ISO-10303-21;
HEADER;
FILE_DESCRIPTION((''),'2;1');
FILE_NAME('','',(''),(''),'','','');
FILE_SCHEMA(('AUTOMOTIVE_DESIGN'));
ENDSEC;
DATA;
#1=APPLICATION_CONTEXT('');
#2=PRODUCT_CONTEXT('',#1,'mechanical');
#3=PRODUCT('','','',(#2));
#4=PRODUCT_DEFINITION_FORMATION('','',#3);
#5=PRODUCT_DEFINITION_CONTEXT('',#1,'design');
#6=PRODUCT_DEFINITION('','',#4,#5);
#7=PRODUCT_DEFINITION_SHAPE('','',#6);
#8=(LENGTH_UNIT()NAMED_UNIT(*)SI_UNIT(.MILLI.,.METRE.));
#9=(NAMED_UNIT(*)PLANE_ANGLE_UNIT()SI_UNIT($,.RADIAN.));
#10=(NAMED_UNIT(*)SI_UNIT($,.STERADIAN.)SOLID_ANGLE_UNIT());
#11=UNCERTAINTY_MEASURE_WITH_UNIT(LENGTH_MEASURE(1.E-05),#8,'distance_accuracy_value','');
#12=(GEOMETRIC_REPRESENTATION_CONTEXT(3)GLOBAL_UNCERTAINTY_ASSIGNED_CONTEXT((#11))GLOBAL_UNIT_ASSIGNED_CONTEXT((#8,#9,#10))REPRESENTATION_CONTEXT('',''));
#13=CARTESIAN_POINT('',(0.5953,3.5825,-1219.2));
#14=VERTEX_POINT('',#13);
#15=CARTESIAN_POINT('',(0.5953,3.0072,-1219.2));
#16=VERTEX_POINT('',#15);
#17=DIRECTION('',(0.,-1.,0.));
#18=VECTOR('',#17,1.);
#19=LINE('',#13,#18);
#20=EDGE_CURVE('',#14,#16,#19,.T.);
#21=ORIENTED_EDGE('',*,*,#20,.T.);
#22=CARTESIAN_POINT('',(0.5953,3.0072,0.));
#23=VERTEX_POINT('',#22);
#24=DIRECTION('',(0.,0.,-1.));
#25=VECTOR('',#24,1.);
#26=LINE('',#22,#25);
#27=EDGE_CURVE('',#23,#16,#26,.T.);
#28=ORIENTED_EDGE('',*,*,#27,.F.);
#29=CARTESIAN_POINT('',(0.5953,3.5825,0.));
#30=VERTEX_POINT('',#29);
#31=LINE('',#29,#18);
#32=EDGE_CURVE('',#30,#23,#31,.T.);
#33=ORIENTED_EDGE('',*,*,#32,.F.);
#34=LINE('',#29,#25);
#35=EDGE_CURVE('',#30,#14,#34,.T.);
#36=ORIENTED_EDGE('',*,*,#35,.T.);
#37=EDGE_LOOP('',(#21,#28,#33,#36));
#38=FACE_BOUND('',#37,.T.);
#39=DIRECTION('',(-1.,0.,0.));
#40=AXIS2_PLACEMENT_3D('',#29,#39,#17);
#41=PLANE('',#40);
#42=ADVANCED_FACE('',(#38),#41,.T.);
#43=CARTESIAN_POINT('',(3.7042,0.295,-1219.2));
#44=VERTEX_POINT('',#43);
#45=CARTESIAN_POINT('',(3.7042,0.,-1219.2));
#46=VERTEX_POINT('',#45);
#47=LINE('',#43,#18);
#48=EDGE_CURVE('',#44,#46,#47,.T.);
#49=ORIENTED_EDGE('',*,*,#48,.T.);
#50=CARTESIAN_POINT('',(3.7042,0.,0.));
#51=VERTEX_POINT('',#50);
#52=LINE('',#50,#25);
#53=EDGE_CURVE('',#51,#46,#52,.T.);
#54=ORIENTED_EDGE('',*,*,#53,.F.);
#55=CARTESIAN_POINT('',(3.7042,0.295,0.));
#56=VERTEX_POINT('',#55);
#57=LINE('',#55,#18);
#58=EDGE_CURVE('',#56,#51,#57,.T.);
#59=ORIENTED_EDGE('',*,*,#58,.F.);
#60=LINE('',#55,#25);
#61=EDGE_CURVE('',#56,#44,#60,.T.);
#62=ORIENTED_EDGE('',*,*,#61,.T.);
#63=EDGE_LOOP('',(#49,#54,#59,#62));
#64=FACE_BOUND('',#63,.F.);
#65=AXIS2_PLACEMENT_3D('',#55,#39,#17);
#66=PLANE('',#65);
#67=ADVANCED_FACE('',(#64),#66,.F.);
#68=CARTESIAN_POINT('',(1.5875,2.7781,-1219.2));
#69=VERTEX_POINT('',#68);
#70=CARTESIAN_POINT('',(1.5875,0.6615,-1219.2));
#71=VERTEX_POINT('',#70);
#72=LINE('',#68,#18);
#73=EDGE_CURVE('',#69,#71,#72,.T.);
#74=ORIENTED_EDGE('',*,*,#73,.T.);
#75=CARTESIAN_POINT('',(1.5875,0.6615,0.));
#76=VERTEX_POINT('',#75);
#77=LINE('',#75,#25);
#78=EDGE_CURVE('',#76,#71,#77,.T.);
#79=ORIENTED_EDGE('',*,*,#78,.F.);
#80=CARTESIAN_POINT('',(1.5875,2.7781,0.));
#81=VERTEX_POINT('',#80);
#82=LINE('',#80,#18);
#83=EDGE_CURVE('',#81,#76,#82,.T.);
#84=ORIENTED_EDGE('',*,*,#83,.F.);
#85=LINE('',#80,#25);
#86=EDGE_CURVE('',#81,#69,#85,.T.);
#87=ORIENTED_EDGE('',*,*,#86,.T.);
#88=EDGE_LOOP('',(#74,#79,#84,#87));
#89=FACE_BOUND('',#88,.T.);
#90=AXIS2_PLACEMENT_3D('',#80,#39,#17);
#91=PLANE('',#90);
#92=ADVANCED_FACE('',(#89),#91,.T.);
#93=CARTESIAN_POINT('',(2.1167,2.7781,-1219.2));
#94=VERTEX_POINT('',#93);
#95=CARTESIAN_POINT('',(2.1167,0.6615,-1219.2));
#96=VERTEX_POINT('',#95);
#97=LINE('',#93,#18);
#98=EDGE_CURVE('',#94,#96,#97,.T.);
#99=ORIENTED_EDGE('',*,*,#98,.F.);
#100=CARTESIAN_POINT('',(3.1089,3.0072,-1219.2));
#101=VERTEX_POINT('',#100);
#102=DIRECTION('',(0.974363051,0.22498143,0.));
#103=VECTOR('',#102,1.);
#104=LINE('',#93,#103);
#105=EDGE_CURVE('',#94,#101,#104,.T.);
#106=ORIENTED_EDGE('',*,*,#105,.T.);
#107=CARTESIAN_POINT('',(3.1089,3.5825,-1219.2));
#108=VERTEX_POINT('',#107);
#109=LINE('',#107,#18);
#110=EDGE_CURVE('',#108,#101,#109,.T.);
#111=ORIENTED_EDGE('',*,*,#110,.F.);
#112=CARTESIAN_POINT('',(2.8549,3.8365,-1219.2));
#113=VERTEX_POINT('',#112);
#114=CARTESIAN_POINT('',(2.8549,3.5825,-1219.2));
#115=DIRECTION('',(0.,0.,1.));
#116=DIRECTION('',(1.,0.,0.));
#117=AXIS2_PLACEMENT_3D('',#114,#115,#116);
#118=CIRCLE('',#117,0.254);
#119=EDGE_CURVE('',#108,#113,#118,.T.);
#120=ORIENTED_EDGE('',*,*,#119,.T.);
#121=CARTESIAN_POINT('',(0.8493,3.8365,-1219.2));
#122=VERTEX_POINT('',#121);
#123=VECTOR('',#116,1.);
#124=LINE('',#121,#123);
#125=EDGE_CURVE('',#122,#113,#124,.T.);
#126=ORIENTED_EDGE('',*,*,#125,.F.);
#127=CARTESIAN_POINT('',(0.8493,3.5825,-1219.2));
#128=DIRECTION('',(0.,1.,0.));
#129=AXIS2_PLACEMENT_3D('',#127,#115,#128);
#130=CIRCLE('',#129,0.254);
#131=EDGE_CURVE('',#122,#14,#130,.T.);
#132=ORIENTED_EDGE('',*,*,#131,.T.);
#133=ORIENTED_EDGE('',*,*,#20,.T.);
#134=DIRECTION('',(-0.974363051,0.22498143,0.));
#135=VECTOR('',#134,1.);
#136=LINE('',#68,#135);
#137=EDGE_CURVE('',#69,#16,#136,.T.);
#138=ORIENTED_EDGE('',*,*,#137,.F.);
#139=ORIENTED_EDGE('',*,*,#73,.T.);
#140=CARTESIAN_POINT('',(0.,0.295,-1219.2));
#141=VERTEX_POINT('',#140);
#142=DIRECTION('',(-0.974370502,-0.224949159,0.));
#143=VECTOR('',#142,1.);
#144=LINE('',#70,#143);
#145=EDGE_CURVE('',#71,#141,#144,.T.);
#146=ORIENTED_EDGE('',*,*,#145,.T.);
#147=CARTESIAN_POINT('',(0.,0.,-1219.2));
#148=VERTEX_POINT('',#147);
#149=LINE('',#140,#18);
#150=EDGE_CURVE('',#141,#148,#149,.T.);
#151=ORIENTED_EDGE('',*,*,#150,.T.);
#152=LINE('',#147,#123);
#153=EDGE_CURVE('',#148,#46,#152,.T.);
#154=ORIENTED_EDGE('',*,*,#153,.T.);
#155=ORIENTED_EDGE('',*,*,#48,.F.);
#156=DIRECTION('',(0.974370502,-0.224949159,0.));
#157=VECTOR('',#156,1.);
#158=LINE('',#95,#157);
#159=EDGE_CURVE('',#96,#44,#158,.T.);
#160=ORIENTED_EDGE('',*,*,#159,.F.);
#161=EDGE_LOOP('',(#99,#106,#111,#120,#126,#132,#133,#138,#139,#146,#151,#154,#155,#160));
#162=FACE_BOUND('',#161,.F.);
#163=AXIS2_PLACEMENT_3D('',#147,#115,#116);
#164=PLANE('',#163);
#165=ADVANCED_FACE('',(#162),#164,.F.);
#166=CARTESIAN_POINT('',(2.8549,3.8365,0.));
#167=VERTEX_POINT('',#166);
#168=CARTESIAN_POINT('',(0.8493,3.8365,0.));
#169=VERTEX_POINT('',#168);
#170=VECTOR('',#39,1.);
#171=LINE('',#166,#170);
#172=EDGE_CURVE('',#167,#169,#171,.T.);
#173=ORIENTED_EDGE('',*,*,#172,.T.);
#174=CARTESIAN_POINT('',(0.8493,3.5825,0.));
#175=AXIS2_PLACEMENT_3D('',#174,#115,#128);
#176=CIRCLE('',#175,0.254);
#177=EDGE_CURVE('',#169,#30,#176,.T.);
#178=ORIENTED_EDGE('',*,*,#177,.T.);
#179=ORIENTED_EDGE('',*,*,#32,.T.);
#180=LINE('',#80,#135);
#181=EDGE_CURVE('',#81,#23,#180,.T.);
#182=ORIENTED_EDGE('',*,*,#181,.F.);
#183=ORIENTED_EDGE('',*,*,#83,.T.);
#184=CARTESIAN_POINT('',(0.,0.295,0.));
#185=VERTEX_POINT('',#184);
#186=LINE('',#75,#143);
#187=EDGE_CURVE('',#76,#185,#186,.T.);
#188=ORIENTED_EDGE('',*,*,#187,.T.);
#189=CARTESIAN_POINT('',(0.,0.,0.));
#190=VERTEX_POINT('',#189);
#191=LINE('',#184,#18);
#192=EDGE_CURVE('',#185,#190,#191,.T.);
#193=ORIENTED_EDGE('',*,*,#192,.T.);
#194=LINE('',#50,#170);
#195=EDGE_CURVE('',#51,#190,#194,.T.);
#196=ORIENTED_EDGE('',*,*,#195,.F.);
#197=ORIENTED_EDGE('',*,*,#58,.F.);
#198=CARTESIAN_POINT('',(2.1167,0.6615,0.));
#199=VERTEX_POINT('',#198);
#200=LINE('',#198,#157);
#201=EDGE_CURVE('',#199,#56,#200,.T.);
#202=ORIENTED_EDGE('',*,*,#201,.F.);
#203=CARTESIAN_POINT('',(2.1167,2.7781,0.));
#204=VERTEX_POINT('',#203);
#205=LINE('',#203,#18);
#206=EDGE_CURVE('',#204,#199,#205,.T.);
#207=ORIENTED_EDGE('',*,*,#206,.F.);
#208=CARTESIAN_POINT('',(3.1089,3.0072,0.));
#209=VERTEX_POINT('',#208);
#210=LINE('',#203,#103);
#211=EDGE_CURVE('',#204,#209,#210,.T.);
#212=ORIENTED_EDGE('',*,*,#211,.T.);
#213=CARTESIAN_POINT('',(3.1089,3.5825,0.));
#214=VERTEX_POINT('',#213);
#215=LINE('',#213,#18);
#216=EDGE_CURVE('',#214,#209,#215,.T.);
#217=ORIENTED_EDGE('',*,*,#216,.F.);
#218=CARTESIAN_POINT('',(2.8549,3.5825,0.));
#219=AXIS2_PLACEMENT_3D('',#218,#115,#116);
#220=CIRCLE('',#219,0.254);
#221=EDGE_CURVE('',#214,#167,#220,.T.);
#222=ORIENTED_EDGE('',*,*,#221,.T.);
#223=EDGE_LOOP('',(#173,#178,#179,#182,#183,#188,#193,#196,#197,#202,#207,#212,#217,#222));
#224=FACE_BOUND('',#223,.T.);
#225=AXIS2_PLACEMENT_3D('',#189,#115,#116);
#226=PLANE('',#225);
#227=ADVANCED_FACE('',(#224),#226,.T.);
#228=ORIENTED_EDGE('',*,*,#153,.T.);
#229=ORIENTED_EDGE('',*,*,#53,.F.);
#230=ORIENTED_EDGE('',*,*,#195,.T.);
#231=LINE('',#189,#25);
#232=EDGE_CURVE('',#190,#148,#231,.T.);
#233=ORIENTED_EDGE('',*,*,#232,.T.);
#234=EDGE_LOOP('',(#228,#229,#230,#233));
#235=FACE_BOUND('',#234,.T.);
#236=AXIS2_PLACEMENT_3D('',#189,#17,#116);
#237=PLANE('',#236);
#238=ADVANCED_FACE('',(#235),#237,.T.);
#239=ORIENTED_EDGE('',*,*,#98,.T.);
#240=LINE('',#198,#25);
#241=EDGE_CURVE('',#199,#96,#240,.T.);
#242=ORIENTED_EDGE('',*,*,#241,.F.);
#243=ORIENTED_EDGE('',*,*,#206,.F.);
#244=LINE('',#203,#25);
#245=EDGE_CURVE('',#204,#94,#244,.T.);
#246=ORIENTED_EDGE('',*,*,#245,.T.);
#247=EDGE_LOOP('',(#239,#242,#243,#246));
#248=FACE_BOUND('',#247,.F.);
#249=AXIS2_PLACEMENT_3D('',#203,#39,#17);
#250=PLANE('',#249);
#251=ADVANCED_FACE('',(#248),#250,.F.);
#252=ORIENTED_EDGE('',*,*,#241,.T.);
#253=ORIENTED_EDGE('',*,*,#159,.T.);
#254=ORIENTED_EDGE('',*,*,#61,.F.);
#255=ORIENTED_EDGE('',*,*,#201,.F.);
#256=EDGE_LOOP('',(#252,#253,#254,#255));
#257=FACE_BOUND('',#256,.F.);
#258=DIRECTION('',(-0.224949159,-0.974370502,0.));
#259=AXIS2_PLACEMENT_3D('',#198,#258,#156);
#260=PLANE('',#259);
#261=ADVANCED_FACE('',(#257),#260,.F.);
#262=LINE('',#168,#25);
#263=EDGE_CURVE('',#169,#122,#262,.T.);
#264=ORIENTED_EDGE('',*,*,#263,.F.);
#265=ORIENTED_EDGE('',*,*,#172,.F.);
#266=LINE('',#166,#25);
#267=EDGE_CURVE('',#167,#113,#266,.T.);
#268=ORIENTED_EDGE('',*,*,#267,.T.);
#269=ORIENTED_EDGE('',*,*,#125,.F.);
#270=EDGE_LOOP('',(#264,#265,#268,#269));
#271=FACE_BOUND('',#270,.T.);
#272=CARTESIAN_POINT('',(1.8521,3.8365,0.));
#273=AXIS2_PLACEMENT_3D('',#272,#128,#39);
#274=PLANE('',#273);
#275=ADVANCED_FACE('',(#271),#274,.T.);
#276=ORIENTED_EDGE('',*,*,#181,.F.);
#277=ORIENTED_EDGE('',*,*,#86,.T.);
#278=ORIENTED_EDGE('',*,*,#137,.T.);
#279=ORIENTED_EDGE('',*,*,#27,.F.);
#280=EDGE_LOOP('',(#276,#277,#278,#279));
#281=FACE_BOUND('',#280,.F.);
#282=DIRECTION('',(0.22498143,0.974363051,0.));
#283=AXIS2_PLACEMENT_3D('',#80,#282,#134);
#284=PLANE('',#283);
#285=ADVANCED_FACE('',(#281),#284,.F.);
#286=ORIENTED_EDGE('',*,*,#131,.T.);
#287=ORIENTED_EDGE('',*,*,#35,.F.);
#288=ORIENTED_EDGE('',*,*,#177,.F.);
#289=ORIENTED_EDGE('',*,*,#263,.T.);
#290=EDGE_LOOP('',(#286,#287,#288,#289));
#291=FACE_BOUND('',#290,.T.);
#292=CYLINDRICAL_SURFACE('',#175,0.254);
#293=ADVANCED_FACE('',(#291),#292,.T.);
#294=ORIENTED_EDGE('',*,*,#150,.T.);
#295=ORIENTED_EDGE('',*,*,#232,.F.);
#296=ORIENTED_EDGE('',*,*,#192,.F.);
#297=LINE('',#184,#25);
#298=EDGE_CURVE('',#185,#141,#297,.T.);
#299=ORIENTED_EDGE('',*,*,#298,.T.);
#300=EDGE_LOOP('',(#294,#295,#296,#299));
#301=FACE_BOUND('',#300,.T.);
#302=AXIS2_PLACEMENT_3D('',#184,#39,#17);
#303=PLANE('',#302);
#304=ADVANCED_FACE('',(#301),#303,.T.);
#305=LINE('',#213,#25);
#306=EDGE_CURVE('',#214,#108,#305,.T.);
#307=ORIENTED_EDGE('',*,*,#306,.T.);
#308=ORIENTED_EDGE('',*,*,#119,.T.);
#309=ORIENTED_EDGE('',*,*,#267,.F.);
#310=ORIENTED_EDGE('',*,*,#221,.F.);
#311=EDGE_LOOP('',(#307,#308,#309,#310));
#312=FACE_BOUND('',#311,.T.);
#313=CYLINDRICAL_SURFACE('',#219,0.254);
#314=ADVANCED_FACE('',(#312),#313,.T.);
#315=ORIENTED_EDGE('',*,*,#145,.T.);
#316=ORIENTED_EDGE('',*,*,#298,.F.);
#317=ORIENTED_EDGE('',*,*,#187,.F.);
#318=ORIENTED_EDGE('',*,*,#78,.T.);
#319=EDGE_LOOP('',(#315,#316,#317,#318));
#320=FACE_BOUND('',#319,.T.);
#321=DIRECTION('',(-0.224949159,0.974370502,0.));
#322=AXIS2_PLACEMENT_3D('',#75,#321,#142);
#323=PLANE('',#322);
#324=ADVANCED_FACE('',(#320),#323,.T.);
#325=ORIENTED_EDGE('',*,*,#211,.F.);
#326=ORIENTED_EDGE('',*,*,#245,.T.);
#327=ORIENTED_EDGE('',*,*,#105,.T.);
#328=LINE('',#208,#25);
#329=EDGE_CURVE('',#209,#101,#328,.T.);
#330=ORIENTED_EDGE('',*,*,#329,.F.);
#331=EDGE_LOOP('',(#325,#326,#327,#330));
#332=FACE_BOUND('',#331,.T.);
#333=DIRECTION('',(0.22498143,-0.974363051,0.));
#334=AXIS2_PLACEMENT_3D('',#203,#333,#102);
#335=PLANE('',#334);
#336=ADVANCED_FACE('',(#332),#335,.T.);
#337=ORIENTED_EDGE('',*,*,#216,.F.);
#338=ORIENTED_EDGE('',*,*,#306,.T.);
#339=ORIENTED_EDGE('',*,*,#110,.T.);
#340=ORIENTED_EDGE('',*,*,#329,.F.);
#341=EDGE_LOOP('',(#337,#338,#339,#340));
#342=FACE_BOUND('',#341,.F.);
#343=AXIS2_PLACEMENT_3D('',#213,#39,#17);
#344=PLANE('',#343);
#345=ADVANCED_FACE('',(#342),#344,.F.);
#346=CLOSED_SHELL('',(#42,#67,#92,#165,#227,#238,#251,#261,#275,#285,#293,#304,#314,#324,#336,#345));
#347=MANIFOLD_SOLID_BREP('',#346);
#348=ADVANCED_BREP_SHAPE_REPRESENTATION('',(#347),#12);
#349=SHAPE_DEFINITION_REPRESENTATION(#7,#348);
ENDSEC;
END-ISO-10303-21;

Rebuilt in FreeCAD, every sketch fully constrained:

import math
import FreeCAD as App
import Part
import Sketcher
from FreeCAD import Vector
Q = App.Units.Quantity

doc = App.newDocument("Part")
params = doc.addObject("Spreadsheet::Sheet", "Params")
for row, (alias, value) in enumerate([
    ("sketch1_radius", "0.01 in"),
    ("pad1_length", "48 in"),
], start=1):
    params.set(f"A{row}", alias)
    params.set(f"B{row}", "=" + value)
    params.setAlias(f"B{row}", alias)

body = doc.addObject("PartDesign::Body", "Body")

# Sketch on XY plane
sketch1 = body.newObject("Sketcher::SketchObject", "Sketch")
sketch1.AttachmentSupport = (doc.getObject("XY_Plane"), [""])
sketch1.MapMode = "FlatFace"
sketch1.addGeometry([
    Part.LineSegment(Vector(0, 0.29, 0), Vector(0, 0, 0)),  # 0
    Part.LineSegment(Vector(0, 0, 0), Vector(3.7, 0, 0)),  # 1
    Part.LineSegment(Vector(3.7, 0, 0), Vector(3.7, 0.29, 0)),  # 2
    Part.LineSegment(Vector(3.7, 0.29, 0), Vector(2.12, 0.66, 0)),  # 3
    Part.LineSegment(Vector(2.12, 0.66, 0), Vector(2.12, 2.78, 0)),  # 4
    Part.LineSegment(Vector(2.12, 2.78, 0), Vector(3.11, 3.01, 0)),  # 5
    Part.LineSegment(Vector(3.11, 3.01, 0), Vector(3.11, 3.58, 0)),  # 6
    Part.ArcOfCircle(Part.Circle(Vector(2.85, 3.58, 0), Vector(0, 0, 1), 0.25), math.radians(0), math.radians(90)),  # 7
    Part.LineSegment(Vector(2.85, 3.84, 0), Vector(0.85, 3.84, 0)),  # 8
    Part.ArcOfCircle(Part.Circle(Vector(0.85, 3.58, 0), Vector(0, 0, 1), 0.25), math.radians(90), math.radians(180)),  # 9
    Part.LineSegment(Vector(0.6, 3.58, 0), Vector(0.6, 3.01, 0)),  # 10
    Part.LineSegment(Vector(0.6, 3.01, 0), Vector(1.59, 2.78, 0)),  # 11
    Part.LineSegment(Vector(1.59, 2.78, 0), Vector(1.59, 0.66, 0)),  # 12
    Part.LineSegment(Vector(1.59, 0.66, 0), Vector(0, 0.29, 0)),  # 13
], False)
sketch1.addConstraint([
    Sketcher.Constraint("Coincident", 0, 2, 1, 1),
    Sketcher.Constraint("Coincident", 1, 2, 2, 1),
    Sketcher.Constraint("Coincident", 2, 2, 3, 1),
    Sketcher.Constraint("Coincident", 3, 2, 4, 1),
    Sketcher.Constraint("Coincident", 4, 2, 5, 1),
    Sketcher.Constraint("Coincident", 5, 2, 6, 1),
    Sketcher.Constraint("Tangent", 6, 2, 7, 1),
    Sketcher.Constraint("Tangent", 7, 2, 8, 1),
    Sketcher.Constraint("Tangent", 8, 2, 9, 1),
    Sketcher.Constraint("Tangent", 9, 2, 10, 1),
    Sketcher.Constraint("Coincident", 10, 2, 11, 1),
    Sketcher.Constraint("Coincident", 11, 2, 12, 1),
    Sketcher.Constraint("Coincident", 12, 2, 13, 1),
    Sketcher.Constraint("Coincident", 13, 2, 0, 1),
    Sketcher.Constraint("Vertical", 0),
    Sketcher.Constraint("Horizontal", 1),
    Sketcher.Constraint("Vertical", 2),
    Sketcher.Constraint("Vertical", 4),
    Sketcher.Constraint("Vertical", 6),
    Sketcher.Constraint("Horizontal", 8),
    Sketcher.Constraint("Vertical", 10),
    Sketcher.Constraint("Vertical", 12),
    Sketcher.Constraint("Coincident", 0, 2, -1, 1),
    Sketcher.Constraint("Equal", 7, 9),
    Sketcher.Constraint("Parallel", 3, 11),
    Sketcher.Constraint("Parallel", 5, 13),
    Sketcher.Constraint("Horizontal", 5, 2, 10, 2),
    Sketcher.Constraint("Horizontal", 4, 2, 11, 2),
    Sketcher.Constraint("Horizontal", 3, 2, 12, 2),
    Sketcher.Constraint("Horizontal", 2, 2, 13, 2),
    Sketcher.Constraint("Equal", 5, 11),
    Sketcher.Constraint("Radius", 7, Q("0.01 in")),
    Sketcher.Constraint("Angle", 3, Q("167 deg")),
    Sketcher.Constraint("DistanceY", 4, 1, 4, 2, Q("2.1166 mm")),
    Sketcher.Constraint("DistanceX", -1, 1, 3, 2, Q("2.1167 mm")),
    Sketcher.Constraint("DistanceY", -1, 1, 3, 2, Q("0.6615 mm")),
    Sketcher.Constraint("DistanceY", 4, 2, 7, 2, Q("1.0584 mm")),
    Sketcher.Constraint("DistanceX", -1, 1, 11, 2, Q("0.0625 in")),
    Sketcher.Constraint("Distance", 5, Q("0.0401 in")),
])
sketch1.setExpression("Constraints[31]", "Params.sketch1_radius")
pad1 = body.newObject("PartDesign::Pad", "Pad")
pad1.Profile = sketch1
pad1.setExpression("Length", "Params.pad1_length")
pad1.Reversed = True

doc.recompute()
